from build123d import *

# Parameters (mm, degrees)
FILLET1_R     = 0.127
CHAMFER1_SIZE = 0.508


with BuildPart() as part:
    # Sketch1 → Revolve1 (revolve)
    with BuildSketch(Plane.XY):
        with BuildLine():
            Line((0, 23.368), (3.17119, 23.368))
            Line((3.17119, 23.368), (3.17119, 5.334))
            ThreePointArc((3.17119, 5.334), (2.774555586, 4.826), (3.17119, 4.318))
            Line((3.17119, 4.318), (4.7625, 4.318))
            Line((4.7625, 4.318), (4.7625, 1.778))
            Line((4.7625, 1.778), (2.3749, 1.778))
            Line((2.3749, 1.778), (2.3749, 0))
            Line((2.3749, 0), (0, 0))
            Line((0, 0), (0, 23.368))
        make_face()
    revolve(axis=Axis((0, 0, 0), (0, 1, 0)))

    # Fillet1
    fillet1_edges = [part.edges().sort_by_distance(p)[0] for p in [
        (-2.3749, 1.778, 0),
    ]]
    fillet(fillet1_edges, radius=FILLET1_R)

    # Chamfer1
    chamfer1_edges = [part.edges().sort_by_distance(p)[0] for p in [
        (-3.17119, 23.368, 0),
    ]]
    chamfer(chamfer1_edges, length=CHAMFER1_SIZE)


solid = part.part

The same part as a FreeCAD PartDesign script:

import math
import FreeCAD as App
import Part
import Sketcher

V = App.Vector
Q = App.Units.Quantity


def edges_at(feature, points):
    """Names of the edges that pass closest to the given points."""
    edges = feature.Shape.Edges
    near = lambda p: min(range(len(edges)), key=lambda i: edges[i].distToShape(Part.Vertex(*p))[0])
    return sorted({f"Edge{near(p) + 1}" for p in points})

doc = App.newDocument("Part")
params = doc.addObject("Spreadsheet::Sheet", "Params")
for row, (alias, value) in enumerate([
    ("sketch1_height", "0.1 in"),
    ("sketch1_height2", "0.92 in"),
    ("sketch1_height3", "0.07 in"),
    ("sketch1_height4", "0.71 in"),
    ("sketch1_width", "0.094 in"),
    ("revolution_angle", "360 deg"),
    ("fillet_radius", "0.005 in"),
    ("chamfer_size", "0.02 in"),
], start=1):
    params.set(f"A{row}", alias)
    params.set(f"B{row}", "=" + value)
    params.setAlias(f"B{row}", alias)

body = doc.addObject("PartDesign::Body", "Body")

# Sketch on XY plane
sketch1 = body.newObject("Sketcher::SketchObject", "Sketch")
sketch1.AttachmentSupport = (doc.getObject("XY_Plane"), [""])
sketch1.MapMode = "FlatFace"
sketch1.addGeometry(Part.LineSegment(V(3.2, 23.4, 0), V(0, 23.4, 0)), False)
sketch1.addGeometry(Part.LineSegment(V(0, 23.4, 0), V(0, 0, 0)), False)
sketch1.addGeometry(Part.LineSegment(V(0, 0, 0), V(2.4, 0, 0)), False)
sketch1.addGeometry(Part.LineSegment(V(2.4, 0, 0), V(2.4, 1.8, 0)), False)
sketch1.addGeometry(Part.LineSegment(V(2.4, 1.8, 0), V(4.8, 1.8, 0)), False)
sketch1.addGeometry(Part.LineSegment(V(4.8, 1.8, 0), V(4.8, 4.3, 0)), False)
sketch1.addGeometry(Part.LineSegment(V(4.8, 4.3, 0), V(3.2, 4.3, 0)), False)
sketch1.addGeometry(Part.ArcOfCircle(Part.Circle(V(3.3, 4.8, 0), V(0, 0, 1), 0.5), math.radians(104), math.radians(256)), False)
sketch1.addGeometry(Part.LineSegment(V(3.2, 5.3, 0), V(3.2, 23.4, 0)), False)
sketch1.addConstraint(Sketcher.Constraint("Coincident", 0, 2, 1, 1))
sketch1.addConstraint(Sketcher.Constraint("Coincident", 1, 2, 2, 1))
sketch1.addConstraint(Sketcher.Constraint("Coincident", 2, 2, 3, 1))
sketch1.addConstraint(Sketcher.Constraint("Coincident", 3, 2, 4, 1))
sketch1.addConstraint(Sketcher.Constraint("Coincident", 4, 2, 5, 1))
sketch1.addConstraint(Sketcher.Constraint("Coincident", 5, 2, 6, 1))
sketch1.addConstraint(Sketcher.Constraint("Coincident", 6, 2, 7, 2))
sketch1.addConstraint(Sketcher.Constraint("Coincident", 7, 1, 8, 1))
sketch1.addConstraint(Sketcher.Constraint("Coincident", 8, 2, 0, 1))
sketch1.addConstraint(Sketcher.Constraint("Horizontal", 0))
sketch1.addConstraint(Sketcher.Constraint("Vertical", 1))
sketch1.addConstraint(Sketcher.Constraint("Horizontal", 2))
sketch1.addConstraint(Sketcher.Constraint("Vertical", 3))
sketch1.addConstraint(Sketcher.Constraint("Horizontal", 4))
sketch1.addConstraint(Sketcher.Constraint("Vertical", 5))
sketch1.addConstraint(Sketcher.Constraint("Horizontal", 6))
sketch1.addConstraint(Sketcher.Constraint("Vertical", 8))
sketch1.addConstraint(Sketcher.Constraint("Coincident", 1, 2, -1, 1))
sketch1.addConstraint(Sketcher.Constraint("Vertical", 6, 2, 7, 1))
sketch1.addConstraint(Sketcher.Constraint("DistanceY", 5, 1, 5, 2, Q("0.1 in")))
sketch1.addConstraint(Sketcher.Constraint("DistanceY", 1, 2, 1, 1, Q("0.92 in")))
sketch1.addConstraint(Sketcher.Constraint("DistanceY", 3, 1, 3, 2, Q("0.07 in")))
sketch1.addConstraint(Sketcher.Constraint("DistanceY", 8, 1, 8, 2, Q("0.71 in")))
sketch1.addConstraint(Sketcher.Constraint("DistanceX", 4, 1, 4, 2, Q("0.094 in")))
sketch1.addConstraint(Sketcher.Constraint("DistanceX", 2, 1, 2, 2, Q("0.0935 in")))
sketch1.addConstraint(Sketcher.Constraint("DistanceX", 6, 2, 7, 3, Q("0.005 in")))
sketch1.addConstraint(Sketcher.Constraint("DistanceX", 0, 2, 0, 1, 3.17119))
sketch1.setExpression("Constraints[19]", "Params.sketch1_height")
sketch1.setExpression("Constraints[20]", "Params.sketch1_height2")
sketch1.setExpression("Constraints[21]", "Params.sketch1_height3")
sketch1.setExpression("Constraints[22]", "Params.sketch1_height4")
sketch1.setExpression("Constraints[23]", "Params.sketch1_width")
revolution = body.newObject("PartDesign::Revolution", "Revolution")
revolution.Profile = sketch1
revolution.ReferenceAxis = (sketch1, ["V_Axis"])
revolution.setExpression("Angle", "Params.revolution_angle")
doc.recompute()

fillet = body.newObject("PartDesign::Fillet", "Fillet")
fillet.Base = (revolution, edges_at(revolution, [(-2.375, 1.778, 0)]))
fillet.setExpression("Radius", "Params.fillet_radius")
doc.recompute()

chamfer = body.newObject("PartDesign::Chamfer", "Chamfer")
chamfer.Base = (fillet, edges_at(fillet, [(-3.171, 23.368, 0)]))
chamfer.setExpression("Size", "Params.chamfer_size")

doc.recompute()
